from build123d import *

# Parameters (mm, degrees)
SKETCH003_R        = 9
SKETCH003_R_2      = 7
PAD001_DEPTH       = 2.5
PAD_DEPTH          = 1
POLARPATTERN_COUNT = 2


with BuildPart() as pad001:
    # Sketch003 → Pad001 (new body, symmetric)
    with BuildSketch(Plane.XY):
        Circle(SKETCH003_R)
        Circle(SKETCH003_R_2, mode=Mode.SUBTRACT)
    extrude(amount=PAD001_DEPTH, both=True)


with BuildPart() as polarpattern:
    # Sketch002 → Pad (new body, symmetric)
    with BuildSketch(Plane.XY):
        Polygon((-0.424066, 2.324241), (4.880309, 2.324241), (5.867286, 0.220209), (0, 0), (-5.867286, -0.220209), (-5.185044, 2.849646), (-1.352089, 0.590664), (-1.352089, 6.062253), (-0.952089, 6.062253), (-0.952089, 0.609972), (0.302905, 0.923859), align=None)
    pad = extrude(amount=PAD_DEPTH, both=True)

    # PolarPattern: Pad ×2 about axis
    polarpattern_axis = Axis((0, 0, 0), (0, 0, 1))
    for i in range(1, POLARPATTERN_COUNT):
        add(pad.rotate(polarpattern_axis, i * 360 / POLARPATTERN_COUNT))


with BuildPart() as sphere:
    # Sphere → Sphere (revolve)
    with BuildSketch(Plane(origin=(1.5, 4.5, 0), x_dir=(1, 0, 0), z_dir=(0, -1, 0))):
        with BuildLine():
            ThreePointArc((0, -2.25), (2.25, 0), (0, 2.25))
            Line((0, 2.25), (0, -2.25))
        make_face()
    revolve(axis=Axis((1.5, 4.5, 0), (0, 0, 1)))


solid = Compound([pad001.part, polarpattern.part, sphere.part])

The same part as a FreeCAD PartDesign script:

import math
import FreeCAD as App
import Part
import Sketcher


def add_polygon(sketch, points):
    """Adds a closed chain of lines whose ends are joined by coincident constraints."""
    first, n = sketch.GeometryCount, len(points)
    for a, b in zip(points, points[1:] + points[:1]):
        sketch.addGeometry(Part.LineSegment(App.Vector(*a, 0), App.Vector(*b, 0)), False)
    for i in range(n):
        sketch.addConstraint(Sketcher.Constraint("Coincident", first + i, 2, first + (i + 1) % n, 1))

doc = App.newDocument("Part")
body = doc.addObject("PartDesign::Body", "Body")

# Sketch on XY plane
sketch1 = doc.addObject("Sketcher::SketchObject", "Sketch")
body.addObject(sketch1)
sketch1.AttachmentSupport = (doc.XY_Plane, [""])
sketch1.MapMode = "FlatFace"
sketch1.addGeometry([
    Part.Circle(App.Vector(0, 0, 0), App.Vector(0, 0, 1), 9),
    Part.Circle(App.Vector(0, 0, 0), App.Vector(0, 0, 1), 7),
], False)
sketch1.addConstraint([
    Sketcher.Constraint("Coincident", 0, 3, -1, 1),
    Sketcher.Constraint("Coincident", 1, 3, -1, 1),
    Sketcher.Constraint("Diameter", 0, 18.0),
    Sketcher.Constraint("Diameter", 1, 14.0),
])
pad1 = doc.addObject("PartDesign::Pad", "Pad")
body.addObject(pad1)
pad1.Profile = sketch1
pad1.Length = 5
pad1.Midplane = True
body2 = doc.addObject("PartDesign::Body", "Body001")

# Sketch on XY plane
sketch2 = doc.addObject("Sketcher::SketchObject", "Sketch001")
body2.addObject(sketch2)
sketch2.AttachmentSupport = (doc.getObject("XY_Plane001"), [""])
sketch2.MapMode = "FlatFace"
add_polygon(sketch2, [(4.880309, 2.324241), (-0.424066, 2.324241), (0.302905, 0.923859), (-0.952089, 0.609972), (-0.952089, 6.062253), (-1.352089, 6.062253), (-1.352089, 0.590664), (-5.185044, 2.849646), (-5.867286, -0.220209), (5.867286, 0.220209)])  # lines 0-9
sketch2.addConstraint([
    Sketcher.Constraint("Horizontal", 0),
    Sketcher.Constraint("Vertical", 3),
    Sketcher.Constraint("Horizontal", 4),
    Sketcher.Constraint("Vertical", 5),
    Sketcher.Constraint("Symmetric", 7, 2, 8, 2, -1, 1),
    Sketcher.Constraint("DistanceX", 4, 2, 4, 1, 0.4),
    Sketcher.Constraint("DistanceY", 3, 1, 3, 2, 5.452281),
    Sketcher.Constraint("DistanceY", 5, 2, 5, 1, 5.471589),
    Sketcher.Constraint("Distance", 2, 1.293652),
    Sketcher.Constraint("Distance", 7, 3.144752),
    Sketcher.Constraint("Distance", 9, 2.324021),
    Sketcher.Constraint("DistanceX", 0, 2, 0, 1, 5.304375),
    Sketcher.Constraint("DistanceY", -1, 1, 0, 2, 2.324241),
    Sketcher.Constraint("DistanceY", -1, 1, 1, 2, 0.923859),
    Sketcher.Constraint("DistanceX", 2, 2, -1, 1, 0.952089),
    Sketcher.Constraint("DistanceY", -1, 1, 2, 2, 0.609972),
    Sketcher.Constraint("DistanceY", 7, 2, -1, 1, 0.220209),
    Sketcher.Constraint("DistanceX", -1, 1, 9, 2, 4.880309),
    Sketcher.Constraint("DistanceY", 5, 2, 6, 2, 2.258982),
])
pad2 = doc.addObject("PartDesign::Pad", "Pad001")
body2.addObject(pad2)
pad2.Profile = sketch2
pad2.Length = 2
pad2.Midplane = True
doc.recompute()

polarpattern = doc.addObject("PartDesign::PolarPattern", "PolarPattern")
body2.addObject(polarpattern)
polarpattern.Originals = [pad2]
polarpattern.Axis = (doc.getObject("Z_Axis001"), [""])
polarpattern.Angle = 360
polarpattern.Occurrences = 2
body2.Tip = polarpattern
body3 = doc.addObject("PartDesign::Body", "Body002")

# Sketch on XZ plane
sketch3 = doc.addObject("Sketcher::SketchObject", "Sketch002")
body3.addObject(sketch3)
sketch3.AttachmentSupport = (doc.getObject("XZ_Plane002"), [""])
sketch3.MapMode = "FlatFace"
sketch3.AttachmentOffset = App.Placement(App.Vector(0, 0, -4.5), App.Rotation())
sketch3.addGeometry([
    Part.ArcOfCircle(Part.Circle(App.Vector(1.5, 0, 0), App.Vector(0, 0, 1), 2.25), math.radians(-90), math.radians(90)),
    Part.LineSegment(App.Vector(1.5, 2.25, 0), App.Vector(1.5, -2.25, 0)),
], False)
sketch3.addGeometry(Part.LineSegment(App.Vector(1.5, -2.25, 0), App.Vector(1.5, 2.25, 0)), True)  # axis
sketch3.addConstraint([
    Sketcher.Constraint("Coincident", 0, 1, 1, 2),
    Sketcher.Constraint("Coincident", 1, 1, 0, 2),
    Sketcher.Constraint("Vertical", 1),
    Sketcher.Constraint("Vertical", 2),
    Sketcher.Constraint("Coincident", 2, 1, 0, 1),
    Sketcher.Constraint("PointOnObject", 0, 3, -1),
    Sketcher.Constraint("Equal", 1, 2),
    Sketcher.Constraint("Radius", 0, 2.25),
    Sketcher.Constraint("DistanceX", -1, 1, 0, 3, 1.5),
    Sketcher.Constraint("DistanceX", -1, 1, 0, 1, 1.5),
])
revolution = doc.addObject("PartDesign::Revolution", "Revolution")
body3.addObject(revolution)
revolution.Profile = sketch3
revolution.ReferenceAxis = (sketch3, ["Axis0"])
revolution.Angle = 360

doc.recompute()
